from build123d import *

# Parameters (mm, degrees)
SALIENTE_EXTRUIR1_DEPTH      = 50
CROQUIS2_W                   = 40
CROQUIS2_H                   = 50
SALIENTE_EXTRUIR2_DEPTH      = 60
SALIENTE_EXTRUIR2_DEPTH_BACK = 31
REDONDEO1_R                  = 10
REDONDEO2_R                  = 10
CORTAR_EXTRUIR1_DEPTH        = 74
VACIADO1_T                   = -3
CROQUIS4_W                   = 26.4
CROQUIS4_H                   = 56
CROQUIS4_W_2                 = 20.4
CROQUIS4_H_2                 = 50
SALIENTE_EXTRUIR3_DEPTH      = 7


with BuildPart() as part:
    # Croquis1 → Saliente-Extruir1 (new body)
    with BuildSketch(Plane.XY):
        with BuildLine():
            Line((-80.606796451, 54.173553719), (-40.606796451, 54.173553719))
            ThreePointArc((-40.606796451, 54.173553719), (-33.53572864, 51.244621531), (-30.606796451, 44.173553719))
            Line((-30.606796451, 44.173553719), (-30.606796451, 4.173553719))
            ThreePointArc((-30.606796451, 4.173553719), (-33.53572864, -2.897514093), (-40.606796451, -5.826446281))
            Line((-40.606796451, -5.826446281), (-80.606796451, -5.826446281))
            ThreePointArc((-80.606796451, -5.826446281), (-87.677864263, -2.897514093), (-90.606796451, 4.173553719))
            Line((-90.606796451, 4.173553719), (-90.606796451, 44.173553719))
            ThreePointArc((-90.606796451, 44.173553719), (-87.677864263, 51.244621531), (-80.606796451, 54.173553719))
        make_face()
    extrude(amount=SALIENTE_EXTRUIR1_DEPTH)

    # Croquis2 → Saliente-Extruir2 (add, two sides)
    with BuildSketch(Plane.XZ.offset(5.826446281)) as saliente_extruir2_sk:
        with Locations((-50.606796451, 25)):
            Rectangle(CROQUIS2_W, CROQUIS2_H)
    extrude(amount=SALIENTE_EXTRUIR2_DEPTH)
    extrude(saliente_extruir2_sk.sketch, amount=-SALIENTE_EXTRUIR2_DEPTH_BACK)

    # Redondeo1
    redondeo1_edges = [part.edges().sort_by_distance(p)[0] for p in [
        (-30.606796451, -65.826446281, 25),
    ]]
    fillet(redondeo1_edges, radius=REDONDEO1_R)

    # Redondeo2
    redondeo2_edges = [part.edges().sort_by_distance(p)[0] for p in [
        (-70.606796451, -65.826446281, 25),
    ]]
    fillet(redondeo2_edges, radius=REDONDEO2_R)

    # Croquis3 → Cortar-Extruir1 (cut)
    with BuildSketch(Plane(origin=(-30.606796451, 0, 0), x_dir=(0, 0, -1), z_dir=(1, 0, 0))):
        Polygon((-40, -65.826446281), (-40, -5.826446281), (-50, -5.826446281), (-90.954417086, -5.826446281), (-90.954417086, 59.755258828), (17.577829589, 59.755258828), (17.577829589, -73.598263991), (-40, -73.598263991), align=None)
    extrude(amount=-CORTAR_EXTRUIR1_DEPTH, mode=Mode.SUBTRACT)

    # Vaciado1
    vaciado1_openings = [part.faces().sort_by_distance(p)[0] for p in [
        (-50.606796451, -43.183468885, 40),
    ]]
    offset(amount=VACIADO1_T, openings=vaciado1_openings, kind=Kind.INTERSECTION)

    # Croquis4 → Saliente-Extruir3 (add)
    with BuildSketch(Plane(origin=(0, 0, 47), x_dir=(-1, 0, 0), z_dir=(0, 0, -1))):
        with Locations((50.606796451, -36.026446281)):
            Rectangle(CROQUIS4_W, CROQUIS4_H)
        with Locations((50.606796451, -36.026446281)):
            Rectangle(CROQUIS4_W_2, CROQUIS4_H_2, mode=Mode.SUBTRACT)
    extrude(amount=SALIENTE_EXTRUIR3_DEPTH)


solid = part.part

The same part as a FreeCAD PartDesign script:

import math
import FreeCAD as App
import Part
import Sketcher

V = App.Vector


def edges_at(feature, points):
    """Names of the edges that pass closest to the given points."""
    edges = feature.Shape.Edges
    near = lambda p: min(range(len(edges)), key=lambda i: edges[i].distToShape(Part.Vertex(*p))[0])
    return sorted({f"Edge{near(p) + 1}" for p in points})


def faces_at(feature, points):
    """Names of the faces that lie closest to the given points."""
    faces = feature.Shape.Faces
    near = lambda p: min(range(len(faces)), key=lambda i: faces[i].distToShape(Part.Vertex(*p))[0])
    return sorted({f"Face{near(p) + 1}" for p in points})


def add_polygon(sketch, points):
    """Adds a closed chain of lines whose ends are joined by coincident constraints."""
    first, n = sketch.GeometryCount, len(points)
    for a, b in zip(points, points[1:] + points[:1]):
        sketch.addGeometry(Part.LineSegment(App.Vector(*a, 0), App.Vector(*b, 0)), False)
    for i in range(n):
        sketch.addConstraint(Sketcher.Constraint("Coincident", first + i, 2, first + (i + 1) % n, 1))

doc = App.newDocument("Part")
body = doc.addObject("PartDesign::Body", "Body")

sketch1 = body.newObject("Sketcher::SketchObject", "Sketch")
sketch1.AttachmentSupport = (doc.getObject("XY_Plane"), [""])
sketch1.MapMode = "FlatFace"
sketch1.addGeometry([
    Part.LineSegment(V(-41, 54, 0), V(-81, 54, 0)),
    Part.ArcOfCircle(Part.Circle(V(-81, 44, 0), V(0, 0, 1), 10), math.radians(90), math.radians(180)),
    Part.LineSegment(V(-91, 44, 0), V(-91, 4, 0)),
    Part.ArcOfCircle(Part.Circle(V(-81, 4, 0), V(0, 0, 1), 10), math.radians(180), math.radians(270)),
    Part.LineSegment(V(-81, -6, 0), V(-41, -6, 0)),
    Part.ArcOfCircle(Part.Circle(V(-41, 4, 0), V(0, 0, 1), 10), math.radians(-90), math.radians(0)),
    Part.LineSegment(V(-31, 4, 0), V(-31, 44, 0)),
    Part.ArcOfCircle(Part.Circle(V(-41, 44, 0), V(0, 0, 1), 10), math.radians(0), math.radians(90)),
], False)
sketch1.addConstraint([
    Sketcher.Constraint("Tangent", 0, 2, 1, 1),
    Sketcher.Constraint("Tangent", 1, 2, 2, 1),
    Sketcher.Constraint("Tangent", 2, 2, 3, 1),
    Sketcher.Constraint("Tangent", 3, 2, 4, 1),
    Sketcher.Constraint("Tangent", 4, 2, 5, 1),
    Sketcher.Constraint("Tangent", 5, 2, 6, 1),
    Sketcher.Constraint("Tangent", 6, 2, 7, 1),
    Sketcher.Constraint("Tangent", 7, 2, 0, 1),
    Sketcher.Constraint("Horizontal", 0),
    Sketcher.Constraint("Vertical", 2),
    Sketcher.Constraint("Horizontal", 4),
    Sketcher.Constraint("Vertical", 6),
    Sketcher.Constraint("Equal", 1, 3),
    Sketcher.Constraint("Equal", 3, 5),
    Sketcher.Constraint("Equal", 5, 7),
    Sketcher.Constraint("Equal", 4, 2),
    Sketcher.Constraint("Radius", 1, 10.0),
    Sketcher.Constraint("DistanceX", 0, 2, 0, 1, 40.0),
    Sketcher.Constraint("DistanceX", 1, 3, -1, 1, 80.606796),
    Sketcher.Constraint("DistanceY", -1, 1, 1, 3, 44.173554),
])
pad1 = body.newObject("PartDesign::Pad", "Pad")
pad1.Profile = sketch1
pad1.Length = 50

sketch2 = body.newObject("Sketcher::SketchObject", "Sketch001")
sketch2.AttachmentSupport = (doc.getObject("XZ_Plane"), [""])
sketch2.MapMode = "FlatFace"
sketch2.AttachmentOffset = App.Placement(V(0, 0, 5.826446), App.Rotation())
add_polygon(sketch2, [(-71, 50), (-71, 0), (-31, 0), (-31, 50)])
sketch2.addConstraint([
    Sketcher.Constraint("Vertical", 0),
    Sketcher.Constraint("Horizontal", 1),
    Sketcher.Constraint("Vertical", 2),
    Sketcher.Constraint("Horizontal", 3),
    Sketcher.Constraint("PointOnObject", 0, 2, -1),
    Sketcher.Constraint("DistanceX", 1, 1, 1, 2, 40.0),
    Sketcher.Constraint("DistanceY", 0, 2, 0, 1, 50.0),
    Sketcher.Constraint("DistanceX", 0, 2, -1, 1, 70.606796),
])
pad2 = body.newObject("PartDesign::Pad", "Pad001")
pad2.Profile = sketch2
pad2.Type = "TwoLengths"
pad2.Length = 60
pad2.Length2 = 31
doc.recompute()

fillet = body.newObject("PartDesign::Fillet", "Fillet")
fillet.Base = (pad2, edges_at(pad2, [(-30.607, -65.826, 25)]))
fillet.Radius = 10
doc.recompute()

fillet2 = body.newObject("PartDesign::Fillet", "Fillet001")
fillet2.Base = (fillet, edges_at(fillet, [(-70.607, -65.826, 25)]))
fillet2.Radius = 10

sketch3 = body.newObject("Sketcher::SketchObject", "Sketch002")
sketch3.AttachmentSupport = (doc.getObject("YZ_Plane"), [""])
sketch3.MapMode = "FlatFace"
sketch3.AttachmentOffset = App.Placement(V(0, 0, -30.606796), App.Rotation())
add_polygon(sketch3, [(-6, 40), (-74, 40), (-74, -18), (60, -18), (60, 91), (-6, 91)])
sketch3.addConstraint([
    Sketcher.Constraint("Horizontal", 0),
    Sketcher.Constraint("Vertical", 1),
    Sketcher.Constraint("Horizontal", 2),
    Sketcher.Constraint("Vertical", 3),
    Sketcher.Constraint("Horizontal", 4),
    Sketcher.Constraint("Vertical", 5),
    Sketcher.Constraint("DistanceY", -1, 1, 0, 2, 40.0),
    Sketcher.Constraint("DistanceY", 1, 2, 1, 1, 57.57783),
    Sketcher.Constraint("DistanceX", 0, 2, 0, 1, 67.771818),
    Sketcher.Constraint("DistanceX", 2, 1, 2, 2, 133.353523),
    Sketcher.Constraint("DistanceY", 3, 1, 3, 2, 108.532247),
    Sketcher.Constraint("DistanceX", -1, 1, 2, 2, 59.755259),
])
pocket1 = body.newObject("PartDesign::Pocket", "Pocket")
pocket1.Profile = sketch3
pocket1.Length = 74
doc.recompute()

thickness = body.newObject("PartDesign::Thickness", "Thickness")
thickness.Base = (pocket1, faces_at(pocket1, [(-50.607, -35.826, 40)]))
thickness.Value = 3
thickness.Reversed = True
thickness.Join = "Intersection"

sketch4 = body.newObject("Sketcher::SketchObject", "Sketch003")
sketch4.AttachmentSupport = (doc.getObject("XY_Plane"), [""])
sketch4.MapMode = "FlatFace"
sketch4.AttachmentOffset = App.Placement(V(0, 0, 47), App.Rotation())
add_polygon(sketch4, [(-37, -8), (-37, -64), (-64, -64), (-64, -8)])
add_polygon(sketch4, [(-61, -61), (-40, -61), (-40, -11), (-61, -11)])
sketch4.addConstraint([
    Sketcher.Constraint("Vertical", 0),
    Sketcher.Constraint("Horizontal", 1),
    Sketcher.Constraint("Vertical", 2),
    Sketcher.Constraint("Horizontal", 3),
    Sketcher.Constraint("Horizontal", 4),
    Sketcher.Constraint("Vertical", 5),
    Sketcher.Constraint("Horizontal", 6),
    Sketcher.Constraint("Vertical", 7),
    Sketcher.Constraint("DistanceY", 0, 2, 0, 1, 56.0),
    Sketcher.Constraint("DistanceY", 5, 1, 5, 2, 50.0),
    Sketcher.Constraint("DistanceX", 1, 2, 1, 1, 26.4),
    Sketcher.Constraint("DistanceX", 4, 1, 4, 2, 20.4),
    Sketcher.Constraint("DistanceX", 4, 2, 0, 2, 3.0),
    Sketcher.Constraint("DistanceY", 0, 2, 4, 2, 3.0),
    Sketcher.Constraint("DistanceX", 0, 2, -1, 1, 37.406796),
    Sketcher.Constraint("DistanceY", 0, 2, -1, 1, 64.026446),
])
pad3 = body.newObject("PartDesign::Pad", "Pad002")
pad3.Profile = sketch4
pad3.Length = 7
pad3.Reversed = True

doc.recompute()
